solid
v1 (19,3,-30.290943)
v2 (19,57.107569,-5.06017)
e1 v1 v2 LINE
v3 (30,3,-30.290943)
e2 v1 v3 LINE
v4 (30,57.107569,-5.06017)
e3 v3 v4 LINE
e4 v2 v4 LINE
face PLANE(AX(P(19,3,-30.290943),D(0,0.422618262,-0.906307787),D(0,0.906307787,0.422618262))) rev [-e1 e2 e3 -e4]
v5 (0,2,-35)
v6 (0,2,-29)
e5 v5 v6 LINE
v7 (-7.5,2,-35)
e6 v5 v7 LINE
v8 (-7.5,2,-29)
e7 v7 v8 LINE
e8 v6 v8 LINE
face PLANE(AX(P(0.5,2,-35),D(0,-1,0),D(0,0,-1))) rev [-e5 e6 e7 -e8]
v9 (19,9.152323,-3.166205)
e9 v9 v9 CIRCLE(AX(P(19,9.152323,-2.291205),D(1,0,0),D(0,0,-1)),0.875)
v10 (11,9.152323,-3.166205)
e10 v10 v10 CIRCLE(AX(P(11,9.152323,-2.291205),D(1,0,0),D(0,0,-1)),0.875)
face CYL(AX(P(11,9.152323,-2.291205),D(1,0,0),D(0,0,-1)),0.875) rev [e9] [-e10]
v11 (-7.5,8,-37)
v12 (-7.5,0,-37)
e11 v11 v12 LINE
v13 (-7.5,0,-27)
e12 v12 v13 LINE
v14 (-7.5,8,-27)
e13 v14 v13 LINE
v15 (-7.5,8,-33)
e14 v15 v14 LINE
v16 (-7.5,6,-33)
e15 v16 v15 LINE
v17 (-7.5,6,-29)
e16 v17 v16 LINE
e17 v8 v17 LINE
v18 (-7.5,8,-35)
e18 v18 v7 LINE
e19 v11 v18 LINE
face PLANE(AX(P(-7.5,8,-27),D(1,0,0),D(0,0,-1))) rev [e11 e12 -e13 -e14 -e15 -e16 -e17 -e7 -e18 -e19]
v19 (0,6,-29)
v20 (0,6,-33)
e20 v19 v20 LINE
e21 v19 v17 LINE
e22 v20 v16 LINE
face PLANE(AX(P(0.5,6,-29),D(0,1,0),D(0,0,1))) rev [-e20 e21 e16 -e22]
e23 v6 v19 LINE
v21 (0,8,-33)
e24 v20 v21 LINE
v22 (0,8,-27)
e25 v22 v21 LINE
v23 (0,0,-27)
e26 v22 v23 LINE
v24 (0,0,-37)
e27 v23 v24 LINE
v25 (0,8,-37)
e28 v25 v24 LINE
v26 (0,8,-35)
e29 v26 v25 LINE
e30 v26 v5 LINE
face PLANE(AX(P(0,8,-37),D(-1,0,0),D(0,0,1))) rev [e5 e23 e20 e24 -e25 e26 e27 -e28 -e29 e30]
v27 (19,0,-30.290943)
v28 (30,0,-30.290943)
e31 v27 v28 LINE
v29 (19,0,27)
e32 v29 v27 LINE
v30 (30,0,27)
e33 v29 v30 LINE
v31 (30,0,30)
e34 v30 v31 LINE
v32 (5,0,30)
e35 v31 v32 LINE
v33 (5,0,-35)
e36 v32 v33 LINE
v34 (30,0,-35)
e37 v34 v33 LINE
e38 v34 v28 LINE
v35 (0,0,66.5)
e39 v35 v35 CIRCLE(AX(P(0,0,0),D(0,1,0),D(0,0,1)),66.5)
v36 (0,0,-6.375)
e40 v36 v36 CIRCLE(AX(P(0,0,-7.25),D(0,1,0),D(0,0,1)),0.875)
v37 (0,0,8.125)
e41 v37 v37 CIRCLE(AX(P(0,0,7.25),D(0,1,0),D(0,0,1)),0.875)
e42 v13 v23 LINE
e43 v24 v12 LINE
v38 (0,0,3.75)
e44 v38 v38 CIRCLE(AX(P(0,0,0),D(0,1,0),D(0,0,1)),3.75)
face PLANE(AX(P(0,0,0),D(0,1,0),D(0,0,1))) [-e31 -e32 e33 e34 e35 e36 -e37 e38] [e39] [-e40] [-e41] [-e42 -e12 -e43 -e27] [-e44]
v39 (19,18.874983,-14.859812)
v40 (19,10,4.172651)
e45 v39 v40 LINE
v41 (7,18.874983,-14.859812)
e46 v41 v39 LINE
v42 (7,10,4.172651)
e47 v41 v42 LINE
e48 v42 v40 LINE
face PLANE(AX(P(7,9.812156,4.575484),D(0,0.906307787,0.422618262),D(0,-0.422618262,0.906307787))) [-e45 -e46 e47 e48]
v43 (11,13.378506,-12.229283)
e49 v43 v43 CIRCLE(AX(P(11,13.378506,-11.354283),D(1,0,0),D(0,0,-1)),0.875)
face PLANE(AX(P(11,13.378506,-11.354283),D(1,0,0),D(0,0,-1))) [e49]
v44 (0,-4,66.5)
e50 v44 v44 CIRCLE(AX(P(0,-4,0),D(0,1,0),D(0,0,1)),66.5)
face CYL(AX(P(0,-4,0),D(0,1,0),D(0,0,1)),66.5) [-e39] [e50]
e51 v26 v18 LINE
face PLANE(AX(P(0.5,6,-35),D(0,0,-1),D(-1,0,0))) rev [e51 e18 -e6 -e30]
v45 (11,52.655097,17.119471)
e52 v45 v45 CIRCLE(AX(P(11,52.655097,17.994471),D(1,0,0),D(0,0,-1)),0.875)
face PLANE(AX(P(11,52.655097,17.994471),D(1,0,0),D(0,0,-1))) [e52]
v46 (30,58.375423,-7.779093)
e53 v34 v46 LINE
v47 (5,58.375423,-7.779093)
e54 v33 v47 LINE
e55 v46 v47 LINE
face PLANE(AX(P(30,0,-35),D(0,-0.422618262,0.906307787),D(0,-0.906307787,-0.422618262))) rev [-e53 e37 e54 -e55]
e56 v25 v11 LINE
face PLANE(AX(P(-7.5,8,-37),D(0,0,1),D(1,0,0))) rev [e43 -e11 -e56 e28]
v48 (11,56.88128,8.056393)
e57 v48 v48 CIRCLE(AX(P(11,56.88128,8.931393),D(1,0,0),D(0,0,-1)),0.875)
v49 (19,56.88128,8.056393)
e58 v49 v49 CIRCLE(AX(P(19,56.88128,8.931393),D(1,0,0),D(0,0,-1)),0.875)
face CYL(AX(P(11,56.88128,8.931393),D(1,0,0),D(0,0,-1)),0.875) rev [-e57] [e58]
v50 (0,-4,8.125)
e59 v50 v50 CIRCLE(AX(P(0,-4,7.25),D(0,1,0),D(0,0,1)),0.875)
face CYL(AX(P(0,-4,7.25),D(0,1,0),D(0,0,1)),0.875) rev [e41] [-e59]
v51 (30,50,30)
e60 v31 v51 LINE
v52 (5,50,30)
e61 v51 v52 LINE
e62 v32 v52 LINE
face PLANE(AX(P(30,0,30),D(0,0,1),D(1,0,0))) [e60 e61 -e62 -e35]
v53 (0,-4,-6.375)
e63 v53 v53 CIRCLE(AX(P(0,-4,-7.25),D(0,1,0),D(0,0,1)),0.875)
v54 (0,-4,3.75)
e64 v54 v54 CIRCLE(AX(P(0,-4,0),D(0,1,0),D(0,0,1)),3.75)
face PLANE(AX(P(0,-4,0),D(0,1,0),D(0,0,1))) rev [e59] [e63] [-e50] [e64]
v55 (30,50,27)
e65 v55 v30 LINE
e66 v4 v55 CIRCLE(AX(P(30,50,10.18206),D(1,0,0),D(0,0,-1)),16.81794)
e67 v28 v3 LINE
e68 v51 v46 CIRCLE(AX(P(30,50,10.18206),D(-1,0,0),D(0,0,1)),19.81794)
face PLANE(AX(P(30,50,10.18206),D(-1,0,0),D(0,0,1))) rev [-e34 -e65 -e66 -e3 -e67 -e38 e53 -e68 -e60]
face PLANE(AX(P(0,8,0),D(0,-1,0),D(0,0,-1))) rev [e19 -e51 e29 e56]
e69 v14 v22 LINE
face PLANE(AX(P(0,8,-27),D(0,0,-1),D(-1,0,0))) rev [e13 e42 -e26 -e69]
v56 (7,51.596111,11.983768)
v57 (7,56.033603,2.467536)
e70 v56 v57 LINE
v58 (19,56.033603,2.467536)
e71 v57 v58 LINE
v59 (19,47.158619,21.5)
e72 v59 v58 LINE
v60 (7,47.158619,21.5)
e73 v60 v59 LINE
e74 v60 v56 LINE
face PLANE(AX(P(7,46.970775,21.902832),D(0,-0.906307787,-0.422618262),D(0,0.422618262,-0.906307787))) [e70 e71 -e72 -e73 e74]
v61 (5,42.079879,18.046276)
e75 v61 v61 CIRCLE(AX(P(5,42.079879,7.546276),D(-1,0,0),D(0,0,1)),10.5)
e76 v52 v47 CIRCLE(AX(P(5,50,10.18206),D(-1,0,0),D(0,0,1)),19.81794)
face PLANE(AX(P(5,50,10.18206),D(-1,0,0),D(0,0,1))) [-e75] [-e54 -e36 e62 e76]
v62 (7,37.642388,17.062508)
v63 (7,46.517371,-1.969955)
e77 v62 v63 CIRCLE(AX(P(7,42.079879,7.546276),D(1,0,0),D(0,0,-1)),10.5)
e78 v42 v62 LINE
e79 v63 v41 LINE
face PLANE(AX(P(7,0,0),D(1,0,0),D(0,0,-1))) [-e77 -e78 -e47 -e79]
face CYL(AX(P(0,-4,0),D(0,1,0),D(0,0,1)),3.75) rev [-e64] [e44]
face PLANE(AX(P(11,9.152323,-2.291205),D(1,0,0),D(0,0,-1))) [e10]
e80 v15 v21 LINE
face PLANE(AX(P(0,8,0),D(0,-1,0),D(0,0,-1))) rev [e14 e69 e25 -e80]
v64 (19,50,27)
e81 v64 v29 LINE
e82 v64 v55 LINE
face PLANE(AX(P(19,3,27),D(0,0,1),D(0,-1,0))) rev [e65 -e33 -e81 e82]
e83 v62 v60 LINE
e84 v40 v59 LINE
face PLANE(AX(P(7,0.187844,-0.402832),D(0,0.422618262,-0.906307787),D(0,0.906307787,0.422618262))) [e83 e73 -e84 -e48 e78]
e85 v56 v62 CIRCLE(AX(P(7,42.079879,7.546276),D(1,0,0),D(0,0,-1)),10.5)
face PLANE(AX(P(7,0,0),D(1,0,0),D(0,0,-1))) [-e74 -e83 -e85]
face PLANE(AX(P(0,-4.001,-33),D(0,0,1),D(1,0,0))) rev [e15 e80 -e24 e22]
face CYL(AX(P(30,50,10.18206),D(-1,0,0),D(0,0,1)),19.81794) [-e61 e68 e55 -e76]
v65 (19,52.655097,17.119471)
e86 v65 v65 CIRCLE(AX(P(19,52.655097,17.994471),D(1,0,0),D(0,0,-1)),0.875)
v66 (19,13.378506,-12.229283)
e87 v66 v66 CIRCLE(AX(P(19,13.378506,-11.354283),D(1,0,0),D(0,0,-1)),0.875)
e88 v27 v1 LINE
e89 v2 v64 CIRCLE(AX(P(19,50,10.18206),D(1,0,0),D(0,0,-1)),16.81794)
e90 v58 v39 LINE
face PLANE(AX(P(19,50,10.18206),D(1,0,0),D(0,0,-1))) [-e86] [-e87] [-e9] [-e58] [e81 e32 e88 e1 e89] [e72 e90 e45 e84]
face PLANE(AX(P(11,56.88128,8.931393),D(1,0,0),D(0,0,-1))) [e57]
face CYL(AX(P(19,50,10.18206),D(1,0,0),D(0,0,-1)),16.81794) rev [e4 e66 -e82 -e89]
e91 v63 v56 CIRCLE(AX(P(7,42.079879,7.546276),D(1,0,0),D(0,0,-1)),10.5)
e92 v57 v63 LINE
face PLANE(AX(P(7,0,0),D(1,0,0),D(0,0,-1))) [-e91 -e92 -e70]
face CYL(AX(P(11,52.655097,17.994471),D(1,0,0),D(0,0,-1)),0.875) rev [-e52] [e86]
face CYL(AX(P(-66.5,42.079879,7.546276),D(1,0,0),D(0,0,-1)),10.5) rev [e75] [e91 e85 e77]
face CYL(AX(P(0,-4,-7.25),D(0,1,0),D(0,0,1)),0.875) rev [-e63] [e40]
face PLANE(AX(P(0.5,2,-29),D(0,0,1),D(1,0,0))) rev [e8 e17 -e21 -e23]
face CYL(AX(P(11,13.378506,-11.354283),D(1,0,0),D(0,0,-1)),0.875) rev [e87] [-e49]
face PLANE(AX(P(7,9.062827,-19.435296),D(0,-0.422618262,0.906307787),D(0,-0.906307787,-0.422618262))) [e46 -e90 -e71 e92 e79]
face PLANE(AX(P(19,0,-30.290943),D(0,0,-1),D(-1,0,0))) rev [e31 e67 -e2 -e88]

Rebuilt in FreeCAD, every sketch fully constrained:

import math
import FreeCAD as App
import Part
import Sketcher
from FreeCAD import Vector
Q = App.Units.Quantity


def add_polygon(sketch, points):
    """Adds a closed chain of lines whose ends are joined by coincident constraints."""
    first, n = sketch.GeometryCount, len(points)
    for a, b in zip(points, points[1:] + points[:1]):
        sketch.addGeometry(Part.LineSegment(App.Vector(*a, 0), App.Vector(*b, 0)), False)
    for i in range(n):
        sketch.addConstraint(Sketcher.Constraint("Coincident", first + i, 2, first + (i + 1) % n, 1))

doc = App.newDocument("Part")
body = doc.addObject("PartDesign::Body", "Body")

# Sketch on XZ plane
sketch1 = body.newObject("Sketcher::SketchObject", "Sketch")
sketch1.AttachmentSupport = (doc.getObject("XZ_Plane"), [""])
sketch1.MapMode = "FlatFace"
sketch1.addGeometry([
    Part.Circle(Vector(0, 0, 0), Vector(0, 0, 1), 66.5),
    Part.Circle(Vector(0, -7.25, 0), Vector(0, 0, 1), 0.875),
    Part.Circle(Vector(0, 0, 0), Vector(0, 0, 1), 3.75),
    Part.Circle(Vector(0, 7.25, 0), Vector(0, 0, 1), 0.875),
], False)
sketch1.addConstraint([
    Sketcher.Constraint("Coincident", 0, 3, -1, 1),
    Sketcher.Constraint("Coincident", 2, 3, -1, 1),
    Sketcher.Constraint("Equal", 1, 3),
    Sketcher.Constraint("Symmetric", 1, 3, 3, 3, -1, 1),
    Sketcher.Constraint("PointOnObject", 1, 3, -2),
    Sketcher.Constraint("Diameter", 0, 133.0),
    Sketcher.Constraint("Diameter", 2, 7.5),
    Sketcher.Constraint("Diameter", 1, 1.75),
    Sketcher.Constraint("DistanceY", 1, 3, 3, 3, 14.5),
])
pad1 = body.newObject("PartDesign::Pad", "Pad")
pad1.Profile = sketch1
pad1.Length = 4

# Sketch on YZ plane
sketch2 = body.newObject("Sketcher::SketchObject", "Sketch001")
sketch2.AttachmentSupport = (doc.getObject("YZ_Plane"), [""])
sketch2.MapMode = "FlatFace"
sketch2.AttachmentOffset = App.Placement(Vector(0, 0, 5), App.Rotation())
sketch2.addGeometry([
    Part.LineSegment(Vector(0, -35, 0), Vector(58.375423, -7.779093, 0)),
    Part.ArcOfCircle(Part.Circle(Vector(50, 10.18206, 0), Vector(0, 0, 1), 19.81794), math.radians(-65), math.radians(90)),
    Part.LineSegment(Vector(50, 30, 0), Vector(0, 30, 0)),
    Part.LineSegment(Vector(0, 30, 0), Vector(0, -35, 0)),
], False)
sketch2.addConstraint([
    Sketcher.Constraint("Tangent", 0, 2, 1, 1),
    Sketcher.Constraint("Tangent", 1, 2, 2, 1),
    Sketcher.Constraint("Coincident", 2, 2, 3, 1),
    Sketcher.Constraint("Coincident", 3, 2, 0, 1),
    Sketcher.Constraint("Horizontal", 2),
    Sketcher.Constraint("Vertical", 3),
    Sketcher.Constraint("PointOnObject", 2, 2, -2),
    Sketcher.Constraint("DistanceX", 2, 2, 2, 1, 50.0),
    Sketcher.Constraint("DistanceY", 3, 2, 3, 1, 65.0),
    Sketcher.Constraint("Angle", 0, Q("25 deg")),
    Sketcher.Constraint("DistanceY", -1, 1, 1, 2, 30.0),
])
pad2 = body.newObject("PartDesign::Pad", "Pad001")
pad2.Profile = sketch2
pad2.Length = 25

# Sketch on YZ plane
sketch3 = body.newObject("Sketcher::SketchObject", "Sketch002")
sketch3.AttachmentSupport = (doc.getObject("YZ_Plane"), [""])
sketch3.MapMode = "FlatFace"
sketch3.AttachmentOffset = App.Placement(Vector(0, 0, 30), App.Rotation())
sketch3.addGeometry([
    Part.LineSegment(Vector(0, 27, 0), Vector(0, -30.290943, 0)),  # 0
    Part.LineSegment(Vector(0, -30.290943, 0), Vector(3, -30.290943, 0)),  # 1
    Part.LineSegment(Vector(3, -30.290943, 0), Vector(57.107569, -5.06017, 0)),  # 2
    Part.ArcOfCircle(Part.Circle(Vector(50, 10.18206, 0), Vector(0, 0, 1), 16.81794), math.radians(-65), math.radians(90)),  # 3
    Part.LineSegment(Vector(50, 27, 0), Vector(0, 27, 0)),  # 4
], False)
sketch3.addConstraint([
    Sketcher.Constraint("Coincident", 0, 2, 1, 1),
    Sketcher.Constraint("Coincident", 1, 2, 2, 1),
    Sketcher.Constraint("Tangent", 2, 2, 3, 1),
    Sketcher.Constraint("Tangent", 3, 2, 4, 1),
    Sketcher.Constraint("Coincident", 4, 2, 0, 1),
    Sketcher.Constraint("Vertical", 0),
    Sketcher.Constraint("Horizontal", 1),
    Sketcher.Constraint("Horizontal", 4),
    Sketcher.Constraint("PointOnObject", 0, 2, -2),
    Sketcher.Constraint("DistanceX", 1, 1, 1, 2, 3.0),
    Sketcher.Constraint("DistanceX", 4, 2, 4, 1, 50.0),
    Sketcher.Constraint("Angle", 2, Q("25 deg")),
    Sketcher.Constraint("DistanceY", -1, 1, 3, 2, 27.0),
    Sketcher.Constraint("Radius", 3, 16.81794),
])
pocket1 = body.newObject("PartDesign::Pocket", "Pocket")
pocket1.Profile = sketch3
pocket1.Length = 11

# Sketch on YZ plane
sketch4 = body.newObject("Sketcher::SketchObject", "Sketch003")
sketch4.AttachmentSupport = (doc.getObject("YZ_Plane"), [""])
sketch4.MapMode = "FlatFace"
sketch4.AttachmentOffset = App.Placement(Vector(0, 0, 19), App.Rotation())
add_polygon(sketch4, [(49.48302, 16.515307), (47.158619, 21.5), (10, 4.172651), (12.3244, -0.812042), (16.550583, -9.875119), (18.874983, -14.859812), (56.033603, 2.467536), (53.709202, 7.452229)])  # lines 0-7
sketch4.addConstraint([
    Sketcher.Constraint("Perpendicular", 0, 1),
    Sketcher.Constraint("Perpendicular", 1, 2),
    Sketcher.Constraint("Parallel", 2, 3),
    Sketcher.Constraint("Parallel", 3, 4),
    Sketcher.Constraint("Perpendicular", 4, 5),
    Sketcher.Constraint("Perpendicular", 5, 6),
    Sketcher.Constraint("Parallel", 6, 7),
    Sketcher.Constraint("Equal", 0, 2),
    Sketcher.Constraint("Equal", 2, 4),
    Sketcher.Constraint("Equal", 4, 6),
    Sketcher.Constraint("Angle", 0, Q("115 deg")),
    Sketcher.Constraint("Distance", 1, 41.0),
    Sketcher.Constraint("Distance", 3, 10.0),
    Sketcher.Constraint("DistanceX", -1, 1, 1, 2, 10.0),
    Sketcher.Constraint("Distance", 0, 5.5),
    Sketcher.Constraint("DistanceY", -1, 1, 0, 2, 21.5),
])
pocket2 = body.newObject("PartDesign::Pocket", "Pocket001")
pocket2.Profile = sketch4
pocket2.Length = 12

# Sketch on YZ plane
sketch5 = body.newObject("Sketcher::SketchObject", "Sketch004")
sketch5.AttachmentSupport = (doc.getObject("YZ_Plane"), [""])
sketch5.MapMode = "FlatFace"
sketch5.AttachmentOffset = App.Placement(Vector(0, 0, 19), App.Rotation())
sketch5.addGeometry([
    Part.Circle(Vector(52.655097, 17.994471, 0), Vector(0, 0, 1), 0.875),
    Part.Circle(Vector(56.88128, 8.931393, 0), Vector(0, 0, 1), 0.875),
    Part.Circle(Vector(13.378506, -11.354283, 0), Vector(0, 0, 1), 0.875),
    Part.Circle(Vector(9.152323, -2.291205, 0), Vector(0, 0, 1), 0.875),
], False)
sketch5.addConstraint([
    Sketcher.Constraint("Equal", 0, 1),
    Sketcher.Constraint("Equal", 1, 2),
    Sketcher.Constraint("Equal", 2, 3),
    Sketcher.Constraint("Diameter", 0, 1.75),
    Sketcher.Constraint("DistanceY", 3, 3, 1, 3, 11.222599),
    Sketcher.Constraint("DistanceY", -1, 1, 0, 3, 17.994471),
    Sketcher.Constraint("DistanceX", -1, 1, 1, 3, 56.88128),
    Sketcher.Constraint("DistanceX", 2, 3, 0, 3, 39.276591),
    Sketcher.Constraint("DistanceX", -1, 1, 0, 3, 52.655097),
    Sketcher.Constraint("DistanceY", -1, 1, 1, 3, 8.931393),
    Sketcher.Constraint("DistanceY", 2, 3, -1, 1, 11.354283),
    Sketcher.Constraint("DistanceX", -1, 1, 3, 3, 9.152323),
])
pocket3 = body.newObject("PartDesign::Pocket", "Pocket002")
pocket3.Profile = sketch5
pocket3.Length = 8

# Sketch on YZ plane
sketch6 = body.newObject("Sketcher::SketchObject", "Sketch005")
sketch6.AttachmentSupport = (doc.getObject("YZ_Plane"), [""])
sketch6.MapMode = "FlatFace"
sketch6.AttachmentOffset = App.Placement(Vector(0, 0, 7), App.Rotation())
sketch6.addGeometry(Part.Circle(Vector(42.079879, 7.546276, 0), Vector(0, 0, 1), 10.5), False)
sketch6.addConstraint([
    Sketcher.Constraint("Diameter", 0, 21.0),
    Sketcher.Constraint("DistanceX", -1, 1, 0, 3, 42.079879),
    Sketcher.Constraint("DistanceY", -1, 1, 0, 3, 7.546276),
])
pocket4 = body.newObject("PartDesign::Pocket", "Pocket003")
pocket4.Profile = sketch6
pocket4.Type = "ThroughAll"

# Sketch on XZ plane
sketch7 = body.newObject("Sketcher::SketchObject", "Sketch006")
sketch7.AttachmentSupport = (doc.getObject("XZ_Plane"), [""])
sketch7.MapMode = "FlatFace"
add_polygon(sketch7, [(-7.5, -37), (-7.5, -27), (0, -27), (0, -37)])  # lines 0-3
sketch7.addConstraint([
    Sketcher.Constraint("Vertical", 0),
    Sketcher.Constraint("Horizontal", 1),
    Sketcher.Constraint("Vertical", 2),
    Sketcher.Constraint("Horizontal", 3),
    Sketcher.Constraint("PointOnObject", 1, 2, -2),
    Sketcher.Constraint("DistanceY", 0, 1, 0, 2, 10.0),
    Sketcher.Constraint("DistanceX", 1, 1, 1, 2, 7.5),
    Sketcher.Constraint("DistanceY", 0, 2, -1, 1, 27.0),
])
pad3 = body.newObject("PartDesign::Pad", "Pad002")
pad3.Profile = sketch7
pad3.Length = 8
pad3.Reversed = True

# Sketch on YZ plane
sketch8 = body.newObject("Sketcher::SketchObject", "Sketch007")
sketch8.AttachmentSupport = (doc.getObject("YZ_Plane"), [""])
sketch8.MapMode = "FlatFace"
sketch8.AttachmentOffset = App.Placement(Vector(0, 0, -7.5), App.Rotation())
add_polygon(sketch8, [(6, -35), (2, -35), (2, -29), (6, -29)])  # lines 0-3
sketch8.addConstraint([
    Sketcher.Constraint("Horizontal", 0),
    Sketcher.Constraint("Vertical", 1),
    Sketcher.Constraint("Horizontal", 2),
    Sketcher.Constraint("Vertical", 3),
    Sketcher.Constraint("DistanceX", 0, 2, 0, 1, 4.0),
    Sketcher.Constraint("DistanceY", 1, 1, 1, 2, 6.0),
    Sketcher.Constraint("DistanceX", -1, 1, 0, 2, 2.0),
    Sketcher.Constraint("DistanceY", 0, 2, -1, 1, 35.0),
])
pocket5 = body.newObject("PartDesign::Pocket", "Pocket004")
pocket5.Profile = sketch8
pocket5.Length = 8
pocket5.Reversed = True

# Sketch on XZ plane
sketch9 = body.newObject("Sketcher::SketchObject", "Sketch008")
sketch9.AttachmentSupport = (doc.getObject("XZ_Plane"), [""])
sketch9.MapMode = "FlatFace"
sketch9.AttachmentOffset = App.Placement(Vector(0, 0, -8), App.Rotation())
add_polygon(sketch9, [(-7.5, -35), (-7.5, -33), (0, -33), (0, -35)])  # lines 0-3
sketch9.addConstraint([
    Sketcher.Constraint("Vertical", 0),
    Sketcher.Constraint("Horizontal", 1),
    Sketcher.Constraint("Vertical", 2),
    Sketcher.Constraint("Horizontal", 3),
    Sketcher.Constraint("PointOnObject", 1, 2, -2),
    Sketcher.Constraint("DistanceY", 0, 1, 0, 2, 2.0),
    Sketcher.Constraint("DistanceX", 1, 1, 1, 2, 7.5),
    Sketcher.Constraint("DistanceY", 0, 2, -1, 1, 33.0),
])
pocket6 = body.newObject("PartDesign::Pocket", "Pocket005")
pocket6.Profile = sketch9
pocket6.Type = "UpToFirst"
pocket6.Reversed = True

doc.recompute()
